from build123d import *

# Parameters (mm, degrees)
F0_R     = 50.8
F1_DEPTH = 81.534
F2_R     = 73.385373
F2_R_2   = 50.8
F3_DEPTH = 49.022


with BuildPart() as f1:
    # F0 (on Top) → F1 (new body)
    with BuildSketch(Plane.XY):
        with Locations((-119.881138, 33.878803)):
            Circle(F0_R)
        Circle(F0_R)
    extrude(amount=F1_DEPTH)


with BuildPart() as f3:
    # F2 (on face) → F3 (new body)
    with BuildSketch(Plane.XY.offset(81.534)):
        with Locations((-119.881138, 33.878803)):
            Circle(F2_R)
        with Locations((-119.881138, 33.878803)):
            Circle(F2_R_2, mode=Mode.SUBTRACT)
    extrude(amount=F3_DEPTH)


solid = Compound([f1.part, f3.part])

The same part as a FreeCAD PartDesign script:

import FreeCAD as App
import Part
import Sketcher

V = App.Vector
Q = App.Units.Quantity

doc = App.newDocument("Part")
body = doc.addObject("PartDesign::Body", "Body")
body.AllowCompound = True

# Sketch on XY plane
sketch1 = body.newObject("Sketcher::SketchObject", "Sketch")
sketch1.AttachmentSupport = (doc.getObject("XY_Plane"), [""])
sketch1.MapMode = "FlatFace"
sketch1.addGeometry(Part.Circle(V(-120, 34, 0), V(0, 0, 1), 51), False)
sketch1.addGeometry(Part.Circle(V(0, 0, 0), V(0, 0, 1), 51), False)
sketch1.addConstraint(Sketcher.Constraint("Coincident", 1, 3, -1, 1))
sketch1.addConstraint(Sketcher.Constraint("Equal", 0, 1))
sketch1.addConstraint(Sketcher.Constraint("Diameter", 0, Q("4 in")))
sketch1.addConstraint(Sketcher.Constraint("DistanceX", 0, 3, -1, 1, Q("119.881138 mm")))
sketch1.addConstraint(Sketcher.Constraint("DistanceY", -1, 1, 0, 3, Q("33.878803 mm")))
pad1 = body.newObject("PartDesign::Pad", "Pad")
pad1.Profile = sketch1
pad1.Length = Q("3.21 in")
body2 = doc.addObject("PartDesign::Body", "Body001")

# Sketch on XY plane
sketch2 = body2.newObject("Sketcher::SketchObject", "Sketch001")
sketch2.AttachmentSupport = (doc.getObject("XY_Plane001"), [""])
sketch2.MapMode = "FlatFace"
sketch2.AttachmentOffset = App.Placement(V(0, 0, 3.21 * 25.4), App.Rotation())
sketch2.addGeometry(Part.Circle(V(-120, 34, 0), V(0, 0, 1), 73), False)
sketch2.addGeometry(Part.Circle(V(-120, 34, 0), V(0, 0, 1), 51), False)
sketch2.addConstraint(Sketcher.Constraint("Coincident", 1, 3, 0, 3))
sketch2.addConstraint(Sketcher.Constraint("Diameter", 1, Q("4 in")))
sketch2.addConstraint(Sketcher.Constraint("Diameter", 0, Q("146.770746 mm")))
sketch2.addConstraint(Sketcher.Constraint("DistanceX", 0, 3, -1, 1, Q("119.881138 mm")))
sketch2.addConstraint(Sketcher.Constraint("DistanceY", -1, 1, 0, 3, Q("33.878803 mm")))
pad2 = body2.newObject("PartDesign::Pad", "Pad001")
pad2.Profile = sketch2
pad2.Length = Q("1.93 in")

doc.recompute()
